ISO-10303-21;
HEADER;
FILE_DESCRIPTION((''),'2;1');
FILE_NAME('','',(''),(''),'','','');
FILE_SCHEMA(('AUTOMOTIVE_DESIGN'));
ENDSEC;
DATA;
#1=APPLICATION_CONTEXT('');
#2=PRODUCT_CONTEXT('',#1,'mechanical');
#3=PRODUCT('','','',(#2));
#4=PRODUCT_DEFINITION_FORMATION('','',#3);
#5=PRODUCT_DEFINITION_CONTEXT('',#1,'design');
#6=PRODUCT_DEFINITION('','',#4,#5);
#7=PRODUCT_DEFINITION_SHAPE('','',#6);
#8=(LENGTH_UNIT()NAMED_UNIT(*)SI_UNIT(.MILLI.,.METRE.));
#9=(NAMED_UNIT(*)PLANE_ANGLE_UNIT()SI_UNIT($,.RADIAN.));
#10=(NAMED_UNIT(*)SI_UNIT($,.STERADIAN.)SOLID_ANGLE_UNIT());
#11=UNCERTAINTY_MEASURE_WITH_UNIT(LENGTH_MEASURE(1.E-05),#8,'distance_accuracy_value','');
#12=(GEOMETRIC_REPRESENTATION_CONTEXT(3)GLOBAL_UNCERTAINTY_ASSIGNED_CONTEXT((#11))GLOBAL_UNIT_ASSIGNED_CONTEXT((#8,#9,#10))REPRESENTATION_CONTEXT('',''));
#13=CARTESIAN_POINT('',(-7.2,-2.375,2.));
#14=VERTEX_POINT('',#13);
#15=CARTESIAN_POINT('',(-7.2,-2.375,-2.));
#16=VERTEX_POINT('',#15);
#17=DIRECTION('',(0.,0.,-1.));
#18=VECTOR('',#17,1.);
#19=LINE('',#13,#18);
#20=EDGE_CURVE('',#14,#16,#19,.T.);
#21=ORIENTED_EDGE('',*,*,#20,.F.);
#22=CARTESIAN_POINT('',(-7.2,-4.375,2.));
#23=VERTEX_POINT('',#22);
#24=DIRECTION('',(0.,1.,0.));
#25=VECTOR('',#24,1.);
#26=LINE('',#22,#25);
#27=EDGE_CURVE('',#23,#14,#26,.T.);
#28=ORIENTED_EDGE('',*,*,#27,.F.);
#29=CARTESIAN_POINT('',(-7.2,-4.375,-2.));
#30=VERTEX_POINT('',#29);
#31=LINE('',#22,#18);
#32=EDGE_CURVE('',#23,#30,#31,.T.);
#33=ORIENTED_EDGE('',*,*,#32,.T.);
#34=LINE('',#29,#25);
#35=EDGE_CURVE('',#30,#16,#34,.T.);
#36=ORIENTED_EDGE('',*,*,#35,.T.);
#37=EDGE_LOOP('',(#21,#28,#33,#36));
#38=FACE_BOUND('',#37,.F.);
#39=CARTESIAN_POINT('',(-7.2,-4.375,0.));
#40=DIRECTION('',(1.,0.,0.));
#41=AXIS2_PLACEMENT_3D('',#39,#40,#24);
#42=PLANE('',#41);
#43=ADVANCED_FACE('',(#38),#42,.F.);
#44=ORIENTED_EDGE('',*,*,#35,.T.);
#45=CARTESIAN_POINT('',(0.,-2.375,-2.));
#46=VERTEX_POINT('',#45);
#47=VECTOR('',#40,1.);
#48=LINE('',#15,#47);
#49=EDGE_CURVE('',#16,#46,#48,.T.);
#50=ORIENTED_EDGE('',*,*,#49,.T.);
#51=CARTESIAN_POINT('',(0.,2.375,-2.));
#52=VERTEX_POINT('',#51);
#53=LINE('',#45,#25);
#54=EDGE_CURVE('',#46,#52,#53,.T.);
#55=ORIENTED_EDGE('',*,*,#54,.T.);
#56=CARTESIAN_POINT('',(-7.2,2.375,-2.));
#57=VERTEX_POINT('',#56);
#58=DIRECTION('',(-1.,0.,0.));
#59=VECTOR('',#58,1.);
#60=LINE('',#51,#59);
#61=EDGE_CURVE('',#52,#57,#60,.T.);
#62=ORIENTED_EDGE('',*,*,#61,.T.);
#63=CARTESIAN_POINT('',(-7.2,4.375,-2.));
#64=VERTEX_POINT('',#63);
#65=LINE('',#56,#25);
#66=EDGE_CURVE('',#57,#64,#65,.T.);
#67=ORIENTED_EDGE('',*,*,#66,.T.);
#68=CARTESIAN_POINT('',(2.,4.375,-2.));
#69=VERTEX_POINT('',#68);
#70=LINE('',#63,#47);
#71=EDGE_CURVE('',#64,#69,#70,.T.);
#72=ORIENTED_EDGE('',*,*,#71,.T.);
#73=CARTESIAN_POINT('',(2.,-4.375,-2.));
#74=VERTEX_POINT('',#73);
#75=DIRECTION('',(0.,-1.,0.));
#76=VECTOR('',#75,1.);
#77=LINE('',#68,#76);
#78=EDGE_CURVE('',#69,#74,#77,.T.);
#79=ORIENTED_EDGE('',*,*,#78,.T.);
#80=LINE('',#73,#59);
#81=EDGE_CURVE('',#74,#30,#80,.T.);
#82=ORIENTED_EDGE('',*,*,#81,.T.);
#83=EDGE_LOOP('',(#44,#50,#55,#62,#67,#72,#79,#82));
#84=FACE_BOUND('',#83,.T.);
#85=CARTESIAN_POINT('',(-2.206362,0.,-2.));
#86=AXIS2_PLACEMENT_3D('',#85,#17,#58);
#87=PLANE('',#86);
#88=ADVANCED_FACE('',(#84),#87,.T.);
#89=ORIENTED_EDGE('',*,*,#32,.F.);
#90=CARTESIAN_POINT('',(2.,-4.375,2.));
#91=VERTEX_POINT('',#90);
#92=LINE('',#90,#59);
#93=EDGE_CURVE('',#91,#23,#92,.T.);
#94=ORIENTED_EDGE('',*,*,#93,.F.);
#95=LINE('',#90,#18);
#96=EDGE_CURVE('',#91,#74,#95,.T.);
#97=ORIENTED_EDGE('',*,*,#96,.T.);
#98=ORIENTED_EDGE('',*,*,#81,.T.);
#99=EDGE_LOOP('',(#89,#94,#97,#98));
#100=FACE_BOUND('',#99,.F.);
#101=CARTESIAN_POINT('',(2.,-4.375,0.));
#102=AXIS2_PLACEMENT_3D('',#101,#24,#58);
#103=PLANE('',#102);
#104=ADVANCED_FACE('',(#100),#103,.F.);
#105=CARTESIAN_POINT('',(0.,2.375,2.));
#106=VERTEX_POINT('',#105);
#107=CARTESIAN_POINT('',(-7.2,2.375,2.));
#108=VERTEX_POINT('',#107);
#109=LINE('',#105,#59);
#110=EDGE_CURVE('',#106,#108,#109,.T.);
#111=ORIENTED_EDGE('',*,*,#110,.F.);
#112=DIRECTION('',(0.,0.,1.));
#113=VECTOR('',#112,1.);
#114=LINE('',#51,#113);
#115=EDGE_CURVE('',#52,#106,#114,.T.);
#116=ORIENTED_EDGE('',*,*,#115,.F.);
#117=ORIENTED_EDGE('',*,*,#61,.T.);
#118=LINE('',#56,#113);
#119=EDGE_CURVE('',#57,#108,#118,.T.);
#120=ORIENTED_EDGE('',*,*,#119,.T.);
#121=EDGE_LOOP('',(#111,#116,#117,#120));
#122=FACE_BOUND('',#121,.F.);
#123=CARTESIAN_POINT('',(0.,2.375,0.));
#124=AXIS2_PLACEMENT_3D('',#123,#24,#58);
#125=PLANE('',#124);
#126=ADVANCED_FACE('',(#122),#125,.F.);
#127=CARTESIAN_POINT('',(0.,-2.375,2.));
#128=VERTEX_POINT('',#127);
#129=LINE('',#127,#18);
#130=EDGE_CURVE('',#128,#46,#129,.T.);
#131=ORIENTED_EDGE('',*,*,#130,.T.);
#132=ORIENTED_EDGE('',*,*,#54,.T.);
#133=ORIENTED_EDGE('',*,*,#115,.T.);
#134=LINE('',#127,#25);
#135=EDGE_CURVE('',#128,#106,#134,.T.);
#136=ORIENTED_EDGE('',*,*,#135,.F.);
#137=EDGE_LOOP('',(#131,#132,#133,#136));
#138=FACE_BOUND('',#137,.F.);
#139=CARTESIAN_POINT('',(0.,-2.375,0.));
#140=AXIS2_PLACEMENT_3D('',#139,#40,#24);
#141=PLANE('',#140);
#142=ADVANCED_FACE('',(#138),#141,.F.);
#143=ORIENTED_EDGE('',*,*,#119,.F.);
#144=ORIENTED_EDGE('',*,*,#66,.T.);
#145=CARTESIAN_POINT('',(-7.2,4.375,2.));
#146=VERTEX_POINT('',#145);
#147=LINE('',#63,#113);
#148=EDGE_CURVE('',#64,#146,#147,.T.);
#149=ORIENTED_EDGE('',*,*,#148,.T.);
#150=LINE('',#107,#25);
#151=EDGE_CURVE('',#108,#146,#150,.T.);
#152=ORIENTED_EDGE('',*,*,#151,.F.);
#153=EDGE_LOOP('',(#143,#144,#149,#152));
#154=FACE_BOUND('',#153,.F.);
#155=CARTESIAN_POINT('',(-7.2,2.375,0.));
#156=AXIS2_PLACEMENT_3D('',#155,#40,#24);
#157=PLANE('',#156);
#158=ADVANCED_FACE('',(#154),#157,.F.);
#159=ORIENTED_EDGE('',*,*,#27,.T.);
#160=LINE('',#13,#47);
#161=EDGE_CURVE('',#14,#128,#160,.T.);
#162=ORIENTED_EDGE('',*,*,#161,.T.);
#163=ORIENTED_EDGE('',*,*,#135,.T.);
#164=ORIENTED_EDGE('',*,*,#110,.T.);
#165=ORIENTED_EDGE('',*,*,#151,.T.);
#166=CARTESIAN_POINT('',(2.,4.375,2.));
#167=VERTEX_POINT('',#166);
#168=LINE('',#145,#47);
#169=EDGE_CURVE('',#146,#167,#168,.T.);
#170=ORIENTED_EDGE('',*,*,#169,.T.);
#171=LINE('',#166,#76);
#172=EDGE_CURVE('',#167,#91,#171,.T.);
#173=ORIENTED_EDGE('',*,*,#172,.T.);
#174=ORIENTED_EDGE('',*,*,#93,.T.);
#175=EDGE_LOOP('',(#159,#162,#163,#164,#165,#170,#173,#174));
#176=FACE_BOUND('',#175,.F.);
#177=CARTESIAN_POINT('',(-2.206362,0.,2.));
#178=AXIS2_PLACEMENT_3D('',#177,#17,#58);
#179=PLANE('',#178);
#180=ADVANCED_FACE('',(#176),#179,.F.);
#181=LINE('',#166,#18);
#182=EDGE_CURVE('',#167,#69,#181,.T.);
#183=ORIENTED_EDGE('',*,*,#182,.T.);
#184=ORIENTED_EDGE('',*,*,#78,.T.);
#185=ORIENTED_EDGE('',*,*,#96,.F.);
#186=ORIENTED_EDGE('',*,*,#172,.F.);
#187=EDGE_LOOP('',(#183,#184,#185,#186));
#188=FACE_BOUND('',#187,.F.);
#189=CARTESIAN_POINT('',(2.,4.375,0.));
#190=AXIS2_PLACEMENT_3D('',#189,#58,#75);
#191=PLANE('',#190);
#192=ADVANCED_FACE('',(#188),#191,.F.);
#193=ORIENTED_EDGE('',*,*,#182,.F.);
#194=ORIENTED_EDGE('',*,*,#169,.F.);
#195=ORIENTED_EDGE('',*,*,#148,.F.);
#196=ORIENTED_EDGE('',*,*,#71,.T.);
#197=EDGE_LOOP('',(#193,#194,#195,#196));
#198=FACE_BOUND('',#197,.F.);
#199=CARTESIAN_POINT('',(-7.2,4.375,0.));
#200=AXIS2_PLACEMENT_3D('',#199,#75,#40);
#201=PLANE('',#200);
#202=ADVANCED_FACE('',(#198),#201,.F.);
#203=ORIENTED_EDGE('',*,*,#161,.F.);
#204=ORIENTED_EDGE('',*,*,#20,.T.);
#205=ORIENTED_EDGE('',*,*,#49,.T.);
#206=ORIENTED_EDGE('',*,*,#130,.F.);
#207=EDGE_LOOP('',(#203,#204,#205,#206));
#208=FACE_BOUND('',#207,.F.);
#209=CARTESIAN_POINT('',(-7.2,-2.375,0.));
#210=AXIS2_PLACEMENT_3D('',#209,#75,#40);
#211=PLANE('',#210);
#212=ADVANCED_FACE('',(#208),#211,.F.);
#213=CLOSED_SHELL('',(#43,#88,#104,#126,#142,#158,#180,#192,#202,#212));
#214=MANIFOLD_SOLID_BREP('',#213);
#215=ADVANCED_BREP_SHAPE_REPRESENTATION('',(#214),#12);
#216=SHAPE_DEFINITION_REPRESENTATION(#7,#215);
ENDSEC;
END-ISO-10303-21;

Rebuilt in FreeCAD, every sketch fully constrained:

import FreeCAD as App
import Part
import Sketcher
from FreeCAD import Vector
Q = App.Units.Quantity


def add_polygon(sketch, points):
    """Adds a closed chain of lines whose ends are joined by coincident constraints."""
    first, n = sketch.GeometryCount, len(points)
    for a, b in zip(points, points[1:] + points[:1]):
        sketch.addGeometry(Part.LineSegment(App.Vector(*a, 0), App.Vector(*b, 0)), False)
    for i in range(n):
        sketch.addConstraint(Sketcher.Constraint("Coincident", first + i, 2, first + (i + 1) % n, 1))

doc = App.newDocument("Part")
params = doc.addObject("Spreadsheet::Sheet", "Params")
for row, (alias, value) in enumerate([
    ("sketch1_height", "2 mm"),
    ("sketch1_width", "9.2 mm"),
    ("sketch1_width2", "7.2 mm"),
    ("sketch1_height2", "4.75 mm"),
    ("pad1_length", "4 mm"),
], start=1):
    params.set(f"A{row}", alias)
    params.set(f"B{row}", "=" + value)
    params.setAlias(f"B{row}", alias)

body = doc.addObject("PartDesign::Body", "Body")

# Sketch on XY plane
sketch1 = doc.addObject("Sketcher::SketchObject", "Sketch")
body.addObject(sketch1)
sketch1.AttachmentSupport = (doc.XY_Plane, [""])
sketch1.MapMode = "FlatFace"
add_polygon(sketch1, [(2, 4.375), (-7.2, 4.375), (-7.2, 2.375), (0, 2.375), (0, -2.375), (-7.2, -2.375), (-7.2, -4.375), (2, -4.375)])  # lines 0-7
sketch1.addConstraint([
    Sketcher.Constraint("Horizontal", 0),
    Sketcher.Constraint("Vertical", 1),
    Sketcher.Constraint("Horizontal", 2),
    Sketcher.Constraint("Vertical", 3),
    Sketcher.Constraint("Horizontal", 4),
    Sketcher.Constraint("Vertical", 5),
    Sketcher.Constraint("Horizontal", 6),
    Sketcher.Constraint("Vertical", 7),
    Sketcher.Constraint("Symmetric", 2, 2, 3, 2, -1, 1),
    Sketcher.Constraint("Symmetric", 0, 2, 5, 2, -1),
    Sketcher.Constraint("DistanceY", 1, 2, 1, 1, Q("2 mm")),
    Sketcher.Constraint("DistanceX", 0, 2, 0, 1, Q("9.2 mm")),
    Sketcher.Constraint("DistanceX", 2, 1, 2, 2, Q("7.2 mm")),
    Sketcher.Constraint("DistanceY", 3, 2, 3, 1, Q("4.75 mm")),
])
sketch1.setExpression("Constraints[18]", "Params.sketch1_height")
sketch1.setExpression("Constraints[19]", "Params.sketch1_width")
sketch1.setExpression("Constraints[20]", "Params.sketch1_width2")
sketch1.setExpression("Constraints[21]", "Params.sketch1_height2")
pad1 = doc.addObject("PartDesign::Pad", "Pad")
body.addObject(pad1)
pad1.Profile = sketch1
pad1.setExpression("Length", "Params.pad1_length")
pad1.Midplane = True

doc.recompute()
